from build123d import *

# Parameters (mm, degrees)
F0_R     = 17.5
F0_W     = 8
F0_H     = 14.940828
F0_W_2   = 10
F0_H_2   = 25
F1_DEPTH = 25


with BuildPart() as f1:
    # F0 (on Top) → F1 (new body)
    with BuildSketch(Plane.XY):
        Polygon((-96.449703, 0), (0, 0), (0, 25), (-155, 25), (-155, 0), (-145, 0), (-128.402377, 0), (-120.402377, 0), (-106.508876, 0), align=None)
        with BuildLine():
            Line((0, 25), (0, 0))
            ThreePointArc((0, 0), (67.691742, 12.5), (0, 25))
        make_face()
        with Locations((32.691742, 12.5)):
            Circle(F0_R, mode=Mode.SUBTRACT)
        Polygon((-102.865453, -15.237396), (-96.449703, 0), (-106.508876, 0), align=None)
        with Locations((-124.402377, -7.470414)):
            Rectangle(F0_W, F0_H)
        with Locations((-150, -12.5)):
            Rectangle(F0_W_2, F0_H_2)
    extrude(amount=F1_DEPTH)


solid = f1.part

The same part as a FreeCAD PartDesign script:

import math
import FreeCAD as App
import Part
import Sketcher

V = App.Vector
Q = App.Units.Quantity

doc = App.newDocument("Part")
body = doc.addObject("PartDesign::Body", "Body")

# Sketch on XY plane
sketch1 = body.newObject("Sketcher::SketchObject", "Sketch")
sketch1.AttachmentSupport = (doc.getObject("XY_Plane"), [""])
sketch1.MapMode = "FlatFace"
sketch1.addGeometry(Part.LineSegment(V(0, 25, 0), V(-155, 25, 0)), False)
sketch1.addGeometry(Part.LineSegment(V(-155, 25, 0), V(-155, -25, 0)), False)
sketch1.addGeometry(Part.LineSegment(V(-155, -25, 0), V(-145, -25, 0)), False)
sketch1.addGeometry(Part.LineSegment(V(-145, -25, 0), V(-145, 0, 0)), False)
sketch1.addGeometry(Part.LineSegment(V(-145, 0, 0), V(-128.402377, 0, 0)), False)
sketch1.addGeometry(Part.LineSegment(V(-128.402377, 0, 0), V(-128.402377, -14.940828, 0)), False)
sketch1.addGeometry(Part.LineSegment(V(-128.402377, -14.940828, 0), V(-120.402377, -14.940828, 0)), False)
sketch1.addGeometry(Part.LineSegment(V(-120.402377, -14.940828, 0), V(-120.402377, 0, 0)), False)
sketch1.addGeometry(Part.LineSegment(V(-120.402377, 0, 0), V(-106.508876, 0, 0)), False)
sketch1.addGeometry(Part.LineSegment(V(-106.508876, 0, 0), V(-102.865453, -15.237396, 0)), False)
sketch1.addGeometry(Part.LineSegment(V(-102.865453, -15.237396, 0), V(-96.449703, 0, 0)), False)
sketch1.addGeometry(Part.LineSegment(V(-96.449703, 0, 0), V(0, 0, 0)), False)
sketch1.addGeometry(Part.ArcOfCircle(Part.Circle(V(32.691742, 12.5, 0), V(0, 0, 1), 35), math.radians(-159.075168), math.radians(159.075168)), False)
sketch1.addGeometry(Part.Circle(V(32.691742, 12.5, 0), V(0, 0, 1), 17.5), False)
sketch1.addConstraint(Sketcher.Constraint("Coincident", 0, 2, 1, 1))
sketch1.addConstraint(Sketcher.Constraint("Coincident", 1, 2, 2, 1))
sketch1.addConstraint(Sketcher.Constraint("Coincident", 2, 2, 3, 1))
sketch1.addConstraint(Sketcher.Constraint("Coincident", 3, 2, 4, 1))
sketch1.addConstraint(Sketcher.Constraint("Coincident", 4, 2, 5, 1))
sketch1.addConstraint(Sketcher.Constraint("Coincident", 5, 2, 6, 1))
sketch1.addConstraint(Sketcher.Constraint("Coincident", 6, 2, 7, 1))
sketch1.addConstraint(Sketcher.Constraint("Coincident", 7, 2, 8, 1))
sketch1.addConstraint(Sketcher.Constraint("Coincident", 8, 2, 9, 1))
sketch1.addConstraint(Sketcher.Constraint("Coincident", 9, 2, 10, 1))
sketch1.addConstraint(Sketcher.Constraint("Coincident", 10, 2, 11, 1))
sketch1.addConstraint(Sketcher.Constraint("Coincident", 11, 2, 12, 1))
sketch1.addConstraint(Sketcher.Constraint("Coincident", 12, 2, 0, 1))
sketch1.addConstraint(Sketcher.Constraint("Horizontal", 0))
sketch1.addConstraint(Sketcher.Constraint("Vertical", 1))
sketch1.addConstraint(Sketcher.Constraint("Horizontal", 2))
sketch1.addConstraint(Sketcher.Constraint("Vertical", 3))
sketch1.addConstraint(Sketcher.Constraint("Horizontal", 4))
sketch1.addConstraint(Sketcher.Constraint("Vertical", 5))
sketch1.addConstraint(Sketcher.Constraint("Horizontal", 6))
sketch1.addConstraint(Sketcher.Constraint("Vertical", 7))
sketch1.addConstraint(Sketcher.Constraint("Horizontal", 8))
sketch1.addConstraint(Sketcher.Constraint("Horizontal", 11))
sketch1.addConstraint(Sketcher.Constraint("Coincident", 11, 2, -1, 1))
sketch1.addConstraint(Sketcher.Constraint("Coincident", 13, 3, 12, 3))
sketch1.addConstraint(Sketcher.Constraint("PointOnObject", 3, 2, -1))
sketch1.addConstraint(Sketcher.Constraint("PointOnObject", 7, 2, -1))
sketch1.addConstraint(Sketcher.Constraint("PointOnObject", 12, 2, -2))
sketch1.addConstraint(Sketcher.Constraint("Diameter", 13, Q("35 mm")))
sketch1.addConstraint(Sketcher.Constraint("Radius", 12, Q("35 mm")))
sketch1.addConstraint(Sketcher.Constraint("DistanceX", 0, 2, 0, 1, Q("155 mm")))
sketch1.addConstraint(Sketcher.Constraint("DistanceX", 2, 1, 2, 2, Q("10 mm")))
sketch1.addConstraint(Sketcher.Constraint("DistanceX", 6, 1, 6, 2, Q("8 mm")))
sketch1.addConstraint(Sketcher.Constraint("DistanceY", 1, 2, 1, 1, Q("50 mm")))
sketch1.addConstraint(Sketcher.Constraint("DistanceY", 3, 1, 3, 2, Q("25 mm")))
sketch1.addConstraint(Sketcher.Constraint("Distance", 10, Q("16.533 mm")))
sketch1.addConstraint(Sketcher.Constraint("DistanceX", 8, 1, 8, 2, Q("13.893501 mm")))
sketch1.addConstraint(Sketcher.Constraint("DistanceX", 4, 1, 4, 2, Q("16.597623 mm")))
sketch1.addConstraint(Sketcher.Constraint("DistanceX", 11, 1, 11, 2, Q("96.449703 mm")))
sketch1.addConstraint(Sketcher.Constraint("DistanceY", 5, 2, 5, 1, Q("14.940828 mm")))
sketch1.addConstraint(Sketcher.Constraint("DistanceY", 9, 2, 6, 2, Q("0.296568 mm")))
pad1 = body.newObject("PartDesign::Pad", "Pad")
pad1.Profile = sketch1
pad1.Length = 25

doc.recompute()
